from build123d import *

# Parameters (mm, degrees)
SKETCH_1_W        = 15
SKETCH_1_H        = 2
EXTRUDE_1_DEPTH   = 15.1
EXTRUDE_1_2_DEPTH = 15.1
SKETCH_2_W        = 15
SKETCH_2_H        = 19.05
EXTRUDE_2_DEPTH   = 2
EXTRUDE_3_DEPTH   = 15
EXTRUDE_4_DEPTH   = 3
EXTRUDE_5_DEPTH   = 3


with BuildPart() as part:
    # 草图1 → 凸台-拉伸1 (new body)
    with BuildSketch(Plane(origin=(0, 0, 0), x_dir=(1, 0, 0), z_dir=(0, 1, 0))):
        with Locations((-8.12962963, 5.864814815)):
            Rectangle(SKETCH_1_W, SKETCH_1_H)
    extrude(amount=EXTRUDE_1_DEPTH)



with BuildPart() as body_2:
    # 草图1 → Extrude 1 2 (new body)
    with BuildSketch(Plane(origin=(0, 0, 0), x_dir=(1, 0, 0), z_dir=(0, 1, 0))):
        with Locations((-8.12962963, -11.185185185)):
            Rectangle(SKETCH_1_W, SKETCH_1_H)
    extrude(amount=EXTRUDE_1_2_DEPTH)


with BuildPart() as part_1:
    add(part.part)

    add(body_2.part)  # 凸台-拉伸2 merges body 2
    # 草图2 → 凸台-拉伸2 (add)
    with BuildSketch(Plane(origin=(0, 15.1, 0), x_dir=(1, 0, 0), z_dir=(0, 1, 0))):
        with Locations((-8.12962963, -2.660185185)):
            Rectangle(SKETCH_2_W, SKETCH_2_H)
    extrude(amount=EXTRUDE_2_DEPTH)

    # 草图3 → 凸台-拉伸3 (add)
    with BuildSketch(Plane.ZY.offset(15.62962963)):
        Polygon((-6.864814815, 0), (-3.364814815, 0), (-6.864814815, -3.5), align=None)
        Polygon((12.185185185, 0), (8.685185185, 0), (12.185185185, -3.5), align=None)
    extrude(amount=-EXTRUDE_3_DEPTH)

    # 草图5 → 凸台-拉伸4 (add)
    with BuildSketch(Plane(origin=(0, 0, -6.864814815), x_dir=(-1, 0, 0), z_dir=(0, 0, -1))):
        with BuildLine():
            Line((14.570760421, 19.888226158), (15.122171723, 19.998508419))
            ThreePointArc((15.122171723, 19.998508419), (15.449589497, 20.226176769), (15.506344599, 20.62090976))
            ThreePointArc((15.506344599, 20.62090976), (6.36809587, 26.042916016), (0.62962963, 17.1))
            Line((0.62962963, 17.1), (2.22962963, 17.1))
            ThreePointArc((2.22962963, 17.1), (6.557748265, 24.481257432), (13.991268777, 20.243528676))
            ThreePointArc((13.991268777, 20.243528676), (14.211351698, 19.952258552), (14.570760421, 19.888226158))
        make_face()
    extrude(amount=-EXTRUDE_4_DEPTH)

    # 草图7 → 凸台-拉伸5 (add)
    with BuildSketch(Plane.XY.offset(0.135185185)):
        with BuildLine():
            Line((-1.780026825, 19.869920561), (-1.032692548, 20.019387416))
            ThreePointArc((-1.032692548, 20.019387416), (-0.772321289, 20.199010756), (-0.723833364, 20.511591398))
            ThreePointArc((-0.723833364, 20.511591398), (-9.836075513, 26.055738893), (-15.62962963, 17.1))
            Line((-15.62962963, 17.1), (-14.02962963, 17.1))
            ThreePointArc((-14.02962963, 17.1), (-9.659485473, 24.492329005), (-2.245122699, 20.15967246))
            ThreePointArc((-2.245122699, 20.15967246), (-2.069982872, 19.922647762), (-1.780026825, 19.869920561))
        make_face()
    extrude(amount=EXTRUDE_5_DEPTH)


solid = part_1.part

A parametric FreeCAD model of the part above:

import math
import FreeCAD as App
import Part
import Sketcher
from FreeCAD import Vector


def add_polygon(sketch, points):
    """Adds a closed chain of lines whose ends are joined by coincident constraints."""
    first, n = sketch.GeometryCount, len(points)
    for a, b in zip(points, points[1:] + points[:1]):
        sketch.addGeometry(Part.LineSegment(App.Vector(*a, 0), App.Vector(*b, 0)), False)
    for i in range(n):
        sketch.addConstraint(Sketcher.Constraint("Coincident", first + i, 2, first + (i + 1) % n, 1))

doc = App.newDocument("Part")
body = doc.addObject("PartDesign::Body", "Body")

sketch1 = doc.addObject("Sketcher::SketchObject", "Sketch")
body.addObject(sketch1)
sketch1.AttachmentSupport = (doc.XZ_Plane, [""])
sketch1.MapMode = "FlatFace"
add_polygon(sketch1, [(-15.6, -6.9), (-15.6, -4.9), (-0.6, -4.9), (-0.6, -6.9)])
sketch1.addConstraint([
    Sketcher.Constraint("Vertical", 0),
    Sketcher.Constraint("Horizontal", 1),
    Sketcher.Constraint("Vertical", 2),
    Sketcher.Constraint("Horizontal", 3),
    Sketcher.Constraint("DistanceX", 1, 1, 1, 2, 15.0),
    Sketcher.Constraint("DistanceY", 0, 1, 0, 2, 2.0),
    Sketcher.Constraint("DistanceX", 0, 2, -1, 1, 15.62963),
    Sketcher.Constraint("DistanceY", 0, 2, -1, 1, 4.864815),
])
pad1 = doc.addObject("PartDesign::Pad", "Pad")
body.addObject(pad1)
pad1.Profile = sketch1
pad1.Length = 15.1
pad1.Reversed = True
body2 = doc.addObject("PartDesign::Body", "Body001")

sketch2 = doc.addObject("Sketcher::SketchObject", "Sketch001")
body2.addObject(sketch2)
sketch2.AttachmentSupport = (doc.getObject("XZ_Plane001"), [""])
sketch2.MapMode = "FlatFace"
add_polygon(sketch2, [(-15.6, 10.2), (-15.6, 12.2), (-0.6, 12.2), (-0.6, 10.2)])
sketch2.addConstraint([
    Sketcher.Constraint("Vertical", 0),
    Sketcher.Constraint("Horizontal", 1),
    Sketcher.Constraint("Vertical", 2),
    Sketcher.Constraint("Horizontal", 3),
    Sketcher.Constraint("DistanceX", 1, 1, 1, 2, 15.0),
    Sketcher.Constraint("DistanceY", 0, 1, 0, 2, 2.0),
    Sketcher.Constraint("DistanceX", 0, 2, -1, 1, 15.62963),
    Sketcher.Constraint("DistanceY", -1, 1, 0, 2, 12.185185),
])
pad2 = doc.addObject("PartDesign::Pad", "Pad001")
body2.addObject(pad2)
pad2.Profile = sketch2
pad2.Length = 15.1
pad2.Reversed = True
body.AllowCompound = True
doc.recompute()

boolean = doc.addObject("PartDesign::Boolean", "Boolean")
body.addObject(boolean)
boolean.Type = "Fuse"
boolean.addObjects([body2])

sketch3 = doc.addObject("Sketcher::SketchObject", "Sketch002")
body.addObject(sketch3)
sketch3.AttachmentSupport = (doc.XZ_Plane, [""])
sketch3.MapMode = "FlatFace"
sketch3.AttachmentOffset = App.Placement(Vector(0, 0, -15.1), App.Rotation())
add_polygon(sketch3, [(-16, -7), (-16, 12), (-1, 12), (-1, -7)])
sketch3.addConstraint([
    Sketcher.Constraint("Vertical", 0),
    Sketcher.Constraint("Horizontal", 1),
    Sketcher.Constraint("Vertical", 2),
    Sketcher.Constraint("Horizontal", 3),
    Sketcher.Constraint("DistanceX", 1, 1, 1, 2, 15.0),
    Sketcher.Constraint("DistanceY", 0, 1, 0, 2, 19.05),
    Sketcher.Constraint("DistanceX", 0, 2, -1, 1, 15.62963),
    Sketcher.Constraint("DistanceY", -1, 1, 0, 2, 12.185185),
])
pad3 = doc.addObject("PartDesign::Pad", "Pad002")
body.addObject(pad3)
pad3.Profile = sketch3
pad3.Length = 2
pad3.Reversed = True

sketch4 = doc.addObject("Sketcher::SketchObject", "Sketch003")
body.addObject(sketch4)
sketch4.AttachmentSupport = (doc.YZ_Plane, [""])
sketch4.MapMode = "FlatFace"
sketch4.AttachmentOffset = App.Placement(Vector(0, 0, -15.62963), App.Rotation())
add_polygon(sketch4, [(0, -3.4), (0, -6.9), (-3.5, -6.9)])
add_polygon(sketch4, [(0, 12.2), (0, 8.7), (-3.5, 12.2)])
sketch4.addConstraint([
    Sketcher.Constraint("Vertical", 0),
    Sketcher.Constraint("Horizontal", 1),
    Sketcher.Constraint("Vertical", 3),
    Sketcher.Constraint("Horizontal", 5),
    Sketcher.Constraint("PointOnObject", 0, 2, -2),
    Sketcher.Constraint("PointOnObject", 3, 2, -2),
    Sketcher.Constraint("Perpendicular", 2, 4),
    Sketcher.Constraint("Vertical", 1, 2, 4, 2),
    Sketcher.Constraint("Equal", 5, 0),
    Sketcher.Constraint("DistanceX", 1, 2, 1, 1, 3.5),
    Sketcher.Constraint("DistanceY", 2, 2, 3, 2, 12.05),
    Sketcher.Constraint("DistanceY", 0, 2, -1, 1, 6.864815),
])
pad4 = doc.addObject("PartDesign::Pad", "Pad003")
body.addObject(pad4)
pad4.Profile = sketch4
pad4.Length = 15

sketch5 = doc.addObject("Sketcher::SketchObject", "Sketch004")
body.addObject(sketch5)
sketch5.AttachmentSupport = (doc.XY_Plane, [""])
sketch5.MapMode = "FlatFace"
sketch5.AttachmentOffset = App.Placement(Vector(0, 0, -6.864815), App.Rotation())
sketch5.addGeometry([
    Part.LineSegment(Vector(-14.6, 19.9, 0), Vector(-15.1, 20, 0)),
    Part.ArcOfCircle(Part.Circle(Vector(-15, 20.5, 0), Vector(0, 0, 1), 0.5), math.radians(165), math.radians(259)),
    Part.ArcOfCircle(Part.Circle(Vector(-8.1, 18.6, 0), Vector(0, 0, 1), 7.6), math.radians(-11), math.radians(165)),
    Part.LineSegment(Vector(-0.6, 17.1, 0), Vector(-2.2, 17.1, 0)),
    Part.ArcOfCircle(Part.Circle(Vector(-8.1, 18.6, 0), Vector(0, 0, 1), 6.1), math.radians(-14), math.radians(164)),
    Part.ArcOfCircle(Part.Circle(Vector(-14.5, 20.4, 0), Vector(0, 0, 1), 0.5), math.radians(-101), math.radians(-16)),
], False)
sketch5.addConstraint([
    Sketcher.Constraint("Tangent", 0, 2, 1, 2),
    Sketcher.Constraint("Tangent", 1, 1, 2, 2),
    Sketcher.Constraint("Coincident", 2, 1, 3, 1),
    Sketcher.Constraint("Coincident", 3, 2, 4, 1),
    Sketcher.Constraint("Tangent", 4, 2, 5, 2),
    Sketcher.Constraint("Tangent", 5, 1, 0, 1),
    Sketcher.Constraint("Horizontal", 3),
    Sketcher.Constraint("Coincident", 4, 3, 2, 3),
    Sketcher.Constraint("Equal", 1, 5),
    Sketcher.Constraint("Radius", 1, 0.5),
    Sketcher.Constraint("DistanceX", 3, 2, 3, 1, 1.6),
    Sketcher.Constraint("DistanceY", -1, 1, 2, 3, 18.6),
    Sketcher.Constraint("DistanceY", -1, 1, 2, 1, 17.1),
    Sketcher.Constraint("DistanceX", 2, 3, 2, 1, 7.5),
    Sketcher.Constraint("DistanceY", -1, 1, 1, 3, 20.488799),
    Sketcher.Constraint("DistanceY", 0, 2, 1, 1, 0.622401),
    Sketcher.Constraint("DistanceX", 2, 3, -1, 1, 8.12963),
])
pad5 = doc.addObject("PartDesign::Pad", "Pad004")
body.addObject(pad5)
pad5.Profile = sketch5
pad5.Length = 3

sketch6 = doc.addObject("Sketcher::SketchObject", "Sketch005")
body.addObject(sketch6)
sketch6.AttachmentSupport = (doc.XY_Plane, [""])
sketch6.MapMode = "FlatFace"
sketch6.AttachmentOffset = App.Placement(Vector(0, 0, 0.135185), App.Rotation())
sketch6.addGeometry([
    Part.LineSegment(Vector(-1.78, 19.87, 0), Vector(-1.03, 20.02, 0)),
    Part.ArcOfCircle(Part.Circle(Vector(-1.11, 20.41, 0), Vector(0, 0, 1), 0.4), math.radians(-79), math.radians(14)),
    Part.ArcOfCircle(Part.Circle(Vector(-8.13, 18.6, 0), Vector(0, 0, 1), 7.65), math.radians(14), math.radians(191)),
    Part.LineSegment(Vector(-15.63, 17.1, 0), Vector(-14.03, 17.1, 0)),
    Part.ArcOfCircle(Part.Circle(Vector(-8.13, 18.6, 0), Vector(0, 0, 1), 6.09), math.radians(15), math.radians(194)),
    Part.ArcOfCircle(Part.Circle(Vector(-1.86, 20.26, 0), Vector(0, 0, 1), 0.4), math.radians(-165), math.radians(-79)),
], False)
sketch6.addConstraint([
    Sketcher.Constraint("Tangent", 0, 2, 1, 1),
    Sketcher.Constraint("Tangent", 1, 2, 2, 1),
    Sketcher.Constraint("Coincident", 2, 2, 3, 1),
    Sketcher.Constraint("Coincident", 3, 2, 4, 2),
    Sketcher.Constraint("Tangent", 4, 1, 5, 1),
    Sketcher.Constraint("Tangent", 5, 2, 0, 1),
    Sketcher.Constraint("Horizontal", 3),
    Sketcher.Constraint("Coincident", 4, 3, 2, 3),
    Sketcher.Constraint("Equal", 1, 5),
    Sketcher.Constraint("Radius", 1, 0.4),
    Sketcher.Constraint("DistanceX", 3, 1, 3, 2, 1.6),
    Sketcher.Constraint("DistanceY", -1, 1, 2, 3, 18.6),
    Sketcher.Constraint("DistanceY", -1, 1, 2, 2, 17.1),
    Sketcher.Constraint("DistanceX", 2, 2, 2, 3, 7.5),
    Sketcher.Constraint("DistanceY", 5, 2, 1, 3, 0.541699),
    Sketcher.Constraint("DistanceX", 1, 3, -1, 1, 1.111139),
    Sketcher.Constraint("DistanceY", -1, 1, 1, 3, 20.41162),
])
pad6 = doc.addObject("PartDesign::Pad", "Pad005")
body.addObject(pad6)
pad6.Profile = sketch6
pad6.Length = 3

doc.recompute()
